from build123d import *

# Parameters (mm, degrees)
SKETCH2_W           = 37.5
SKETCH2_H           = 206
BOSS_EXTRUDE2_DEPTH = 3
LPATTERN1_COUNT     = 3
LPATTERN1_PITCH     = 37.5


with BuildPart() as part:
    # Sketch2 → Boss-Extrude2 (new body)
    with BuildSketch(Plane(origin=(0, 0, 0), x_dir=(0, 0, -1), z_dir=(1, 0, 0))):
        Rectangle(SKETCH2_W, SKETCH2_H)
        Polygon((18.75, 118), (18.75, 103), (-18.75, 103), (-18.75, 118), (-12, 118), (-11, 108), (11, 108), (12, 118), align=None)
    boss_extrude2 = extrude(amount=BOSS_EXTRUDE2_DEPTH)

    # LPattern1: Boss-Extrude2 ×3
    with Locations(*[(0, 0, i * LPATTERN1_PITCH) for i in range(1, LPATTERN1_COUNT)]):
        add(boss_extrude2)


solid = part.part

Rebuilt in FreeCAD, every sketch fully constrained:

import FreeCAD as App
import Part
import Sketcher
Q = App.Units.Quantity


def add_polygon(sketch, points):
    """Adds a closed chain of lines whose ends are joined by coincident constraints."""
    first, n = sketch.GeometryCount, len(points)
    for a, b in zip(points, points[1:] + points[:1]):
        sketch.addGeometry(Part.LineSegment(App.Vector(*a, 0), App.Vector(*b, 0)), False)
    for i in range(n):
        sketch.addConstraint(Sketcher.Constraint("Coincident", first + i, 2, first + (i + 1) % n, 1))

doc = App.newDocument("Part")
body = doc.addObject("PartDesign::Body", "Body")

# Sketch on YZ plane
sketch1 = body.newObject("Sketcher::SketchObject", "Sketch")
sketch1.AttachmentSupport = (doc.getObject("YZ_Plane"), [""])
sketch1.MapMode = "FlatFace"
add_polygon(sketch1, [(-103, 18.75), (-103, -18.75), (118, -18.75), (118, -12), (108, -11), (108, 11), (118, 12), (118, 18.75)])  # lines 0-7
sketch1.addConstraint([
    Sketcher.Constraint("Vertical", 0),
    Sketcher.Constraint("Horizontal", 1),
    Sketcher.Constraint("Vertical", 2),
    Sketcher.Constraint("Vertical", 4),
    Sketcher.Constraint("Vertical", 6),
    Sketcher.Constraint("Horizontal", 7),
    Sketcher.Constraint("Symmetric", 2, 2, 5, 2, -1),
    Sketcher.Constraint("Equal", 2, 6),
    Sketcher.Constraint("Equal", 3, 5),
    Sketcher.Constraint("DistanceX", 1, 1, 1, 2, Q("221 mm")),
    Sketcher.Constraint("DistanceY", 4, 1, 4, 2, Q("22 mm")),
    Sketcher.Constraint("DistanceY", 0, 2, 0, 1, Q("37.5 mm")),
    Sketcher.Constraint("DistanceX", 0, 2, -1, 1, Q("103 mm")),
    Sketcher.Constraint("DistanceY", 2, 2, -1, 1, Q("12 mm")),
    Sketcher.Constraint("DistanceX", -1, 1, 3, 2, Q("108 mm")),
])
pad1 = body.newObject("PartDesign::Pad", "Pad")
pad1.Profile = sketch1
pad1.Length = 3
doc.recompute()

linearpattern = body.newObject("PartDesign::LinearPattern", "LinearPattern")
linearpattern.Originals = [pad1]
linearpattern.Direction = (doc.getObject("Z_Axis"), [""])
linearpattern.Mode = "offset"
linearpattern.Offset = 37.5
linearpattern.Occurrences = 3
body.Tip = linearpattern

doc.recompute()
